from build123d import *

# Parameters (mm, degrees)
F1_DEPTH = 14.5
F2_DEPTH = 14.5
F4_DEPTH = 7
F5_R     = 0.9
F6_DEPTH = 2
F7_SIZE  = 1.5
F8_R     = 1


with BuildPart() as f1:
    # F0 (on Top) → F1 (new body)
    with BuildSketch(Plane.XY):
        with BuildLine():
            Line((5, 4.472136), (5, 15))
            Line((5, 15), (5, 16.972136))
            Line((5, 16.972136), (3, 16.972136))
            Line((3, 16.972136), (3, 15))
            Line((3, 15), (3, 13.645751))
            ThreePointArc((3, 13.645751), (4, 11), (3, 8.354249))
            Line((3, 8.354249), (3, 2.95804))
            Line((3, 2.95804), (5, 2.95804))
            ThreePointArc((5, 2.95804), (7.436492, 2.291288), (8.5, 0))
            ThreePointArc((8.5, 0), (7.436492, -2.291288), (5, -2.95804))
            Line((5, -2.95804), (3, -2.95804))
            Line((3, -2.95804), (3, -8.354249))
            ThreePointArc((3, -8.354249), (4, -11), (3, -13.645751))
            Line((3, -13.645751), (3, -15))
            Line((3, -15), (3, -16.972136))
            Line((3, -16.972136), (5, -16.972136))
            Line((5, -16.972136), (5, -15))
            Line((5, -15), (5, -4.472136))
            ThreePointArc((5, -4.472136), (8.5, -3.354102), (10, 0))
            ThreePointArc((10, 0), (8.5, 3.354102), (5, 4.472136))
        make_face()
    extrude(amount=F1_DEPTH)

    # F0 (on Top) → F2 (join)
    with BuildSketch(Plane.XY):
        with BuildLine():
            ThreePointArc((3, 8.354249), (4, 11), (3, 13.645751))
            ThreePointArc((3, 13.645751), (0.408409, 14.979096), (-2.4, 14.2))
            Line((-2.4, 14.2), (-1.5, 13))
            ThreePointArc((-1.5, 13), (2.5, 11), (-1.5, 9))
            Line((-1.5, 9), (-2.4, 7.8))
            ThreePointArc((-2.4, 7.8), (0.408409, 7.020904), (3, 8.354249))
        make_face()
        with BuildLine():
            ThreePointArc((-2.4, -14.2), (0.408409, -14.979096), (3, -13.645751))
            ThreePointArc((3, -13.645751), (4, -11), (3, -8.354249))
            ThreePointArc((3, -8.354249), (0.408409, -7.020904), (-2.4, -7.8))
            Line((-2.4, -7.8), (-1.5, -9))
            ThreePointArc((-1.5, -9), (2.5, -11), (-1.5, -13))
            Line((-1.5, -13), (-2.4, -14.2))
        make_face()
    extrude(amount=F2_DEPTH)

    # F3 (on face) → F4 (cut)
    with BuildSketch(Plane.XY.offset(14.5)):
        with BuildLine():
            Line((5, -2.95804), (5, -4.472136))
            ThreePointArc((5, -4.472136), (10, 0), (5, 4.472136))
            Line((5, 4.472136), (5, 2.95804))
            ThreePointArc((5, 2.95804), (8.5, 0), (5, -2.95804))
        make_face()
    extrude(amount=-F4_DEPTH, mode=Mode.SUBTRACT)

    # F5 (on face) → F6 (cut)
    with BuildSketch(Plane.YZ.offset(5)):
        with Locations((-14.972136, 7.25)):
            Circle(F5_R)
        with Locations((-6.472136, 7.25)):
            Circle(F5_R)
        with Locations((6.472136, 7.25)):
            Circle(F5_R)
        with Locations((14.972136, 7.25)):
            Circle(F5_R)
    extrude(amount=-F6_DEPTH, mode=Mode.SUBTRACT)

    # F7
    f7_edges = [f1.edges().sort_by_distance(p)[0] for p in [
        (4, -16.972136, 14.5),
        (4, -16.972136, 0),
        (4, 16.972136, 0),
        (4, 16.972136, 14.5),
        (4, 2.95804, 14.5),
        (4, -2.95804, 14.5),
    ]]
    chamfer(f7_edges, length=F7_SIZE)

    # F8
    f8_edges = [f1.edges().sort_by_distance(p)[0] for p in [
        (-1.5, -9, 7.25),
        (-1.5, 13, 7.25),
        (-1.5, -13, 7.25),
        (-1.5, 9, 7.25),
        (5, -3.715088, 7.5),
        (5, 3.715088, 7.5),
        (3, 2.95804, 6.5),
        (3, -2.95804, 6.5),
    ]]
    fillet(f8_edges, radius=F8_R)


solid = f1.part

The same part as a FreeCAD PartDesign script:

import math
import FreeCAD as App
import Part
import Sketcher
from FreeCAD import Vector
Q = App.Units.Quantity


def edges_at(feature, points):
    """Names of the edges that pass closest to the given points."""
    edges = feature.Shape.Edges
    near = lambda p: min(range(len(edges)), key=lambda i: edges[i].distToShape(Part.Vertex(*p))[0])
    return sorted({f"Edge{near(p) + 1}" for p in points})

doc = App.newDocument("Part")
body = doc.addObject("PartDesign::Body", "Body")

sketch1 = body.newObject("Sketcher::SketchObject", "Sketch")
sketch1.AttachmentSupport = (doc.getObject("XY_Plane"), [""])
sketch1.MapMode = "FlatFace"
sketch1.addGeometry([
    Part.LineSegment(Vector(5, 4.472136, 0), Vector(5, 16.972136, 0)),
    Part.LineSegment(Vector(5, 16.972136, 0), Vector(3, 16.972136, 0)),
    Part.LineSegment(Vector(3, 16.972136, 0), Vector(3, 13.645751, 0)),
    Part.ArcOfCircle(Part.Circle(Vector(0.000001, 11, 0), Vector(0, 0, 1), 3.999999), math.radians(-41.409627), math.radians(41.409627)),
    Part.LineSegment(Vector(3, 8.354249, 0), Vector(3, 2.95804, 0)),
    Part.LineSegment(Vector(3, 2.95804, 0), Vector(5, 2.95804, 0)),
    Part.ArcOfCircle(Part.Circle(Vector(5.5, 0.000001, 0), Vector(0, 0, 1), 3), math.radians(-0.000012), math.radians(99.594078)),
    Part.ArcOfCircle(Part.Circle(Vector(5.5, -0.000001, 0), Vector(0, 0, 1), 3), math.radians(-99.594078), math.radians(0.000012)),
    Part.LineSegment(Vector(5, -2.95804, 0), Vector(3, -2.95804, 0)),
    Part.LineSegment(Vector(3, -2.95804, 0), Vector(3, -8.354249, 0)),
    Part.ArcOfCircle(Part.Circle(Vector(0.000001, -11, 0), Vector(0, 0, 1), 3.999999), math.radians(-41.409627), math.radians(41.409627)),
    Part.LineSegment(Vector(3, -13.645751, 0), Vector(3, -16.972136, 0)),
    Part.LineSegment(Vector(3, -16.972136, 0), Vector(5, -16.972136, 0)),
    Part.LineSegment(Vector(5, -16.972136, 0), Vector(5, -4.472136, 0)),
    Part.ArcOfCircle(Part.Circle(Vector(5.5, 0, 0), Vector(0, 0, 1), 4.5), math.radians(-96.37937), math.radians(0)),
    Part.ArcOfCircle(Part.Circle(Vector(5.5, 0, 0), Vector(0, 0, 1), 4.5), math.radians(0), math.radians(96.37937)),
], False)
sketch1.addConstraint([
    Sketcher.Constraint("Coincident", 0, 2, 1, 1),
    Sketcher.Constraint("Coincident", 1, 2, 2, 1),
    Sketcher.Constraint("Coincident", 2, 2, 3, 2),
    Sketcher.Constraint("Coincident", 3, 1, 4, 1),
    Sketcher.Constraint("Coincident", 4, 2, 5, 1),
    Sketcher.Constraint("Coincident", 5, 2, 6, 2),
    Sketcher.Constraint("Tangent", 6, 1, 7, 2),
    Sketcher.Constraint("Coincident", 7, 1, 8, 1),
    Sketcher.Constraint("Coincident", 8, 2, 9, 1),
    Sketcher.Constraint("Coincident", 9, 2, 10, 2),
    Sketcher.Constraint("Coincident", 10, 1, 11, 1),
    Sketcher.Constraint("Coincident", 11, 2, 12, 1),
    Sketcher.Constraint("Coincident", 12, 2, 13, 1),
    Sketcher.Constraint("Coincident", 13, 2, 14, 1),
    Sketcher.Constraint("Tangent", 14, 2, 15, 1),
    Sketcher.Constraint("Coincident", 15, 2, 0, 1),
    Sketcher.Constraint("Vertical", 0),
    Sketcher.Constraint("Horizontal", 1),
    Sketcher.Constraint("Vertical", 2),
    Sketcher.Constraint("Vertical", 4),
    Sketcher.Constraint("Horizontal", 5),
    Sketcher.Constraint("Horizontal", 8),
    Sketcher.Constraint("Vertical", 9),
    Sketcher.Constraint("Vertical", 11),
    Sketcher.Constraint("Horizontal", 12),
    Sketcher.Constraint("Vertical", 13),
    Sketcher.Constraint("Coincident", 14, 3, 6, 3),
    Sketcher.Constraint("Equal", 6, 7),
    Sketcher.Constraint("Equal", 3, 10),
    Sketcher.Constraint("Equal", 14, 15),
    Sketcher.Constraint("Symmetric", 3, 3, 10, 3, -1, 1),
    Sketcher.Constraint("Symmetric", 5, 2, 7, 1, -1),
    Sketcher.Constraint("Symmetric", 3, 1, 9, 2, -1),
    Sketcher.Constraint("Symmetric", 1, 2, 11, 2, -1),
    Sketcher.Constraint("PointOnObject", 6, 1, -1),
    Sketcher.Constraint("PointOnObject", 14, 2, -1),
    Sketcher.Constraint("Vertical", 2, 2, 3, 1),
    Sketcher.Constraint("Vertical", 0, 2, 5, 2),
    Sketcher.Constraint("Vertical", 7, 1, 12, 2),
    Sketcher.Constraint("Radius", 3, Q("3.999999 mm")),
    Sketcher.Constraint("Radius", 6, Q("3 mm")),
    Sketcher.Constraint("Radius", 14, Q("4.5 mm")),
    Sketcher.Constraint("DistanceX", 1, 2, 1, 1, Q("2 mm")),
    Sketcher.Constraint("DistanceY", 0, 1, 0, 2, Q("12.5 mm")),
    Sketcher.Constraint("DistanceY", -1, 1, 3, 3, Q("11 mm")),
    Sketcher.Constraint("DistanceX", -1, 1, 0, 2, Q("5 mm")),
    Sketcher.Constraint("DistanceX", -1, 1, 14, 2, Q("10 mm")),
])
pad1 = body.newObject("PartDesign::Pad", "Pad")
pad1.Profile = sketch1
pad1.Length = 14.5

sketch2 = body.newObject("Sketcher::SketchObject", "Sketch001")
sketch2.AttachmentSupport = (doc.getObject("XY_Plane"), [""])
sketch2.MapMode = "FlatFace"
sketch2.addGeometry([
    Part.ArcOfCircle(Part.Circle(Vector(0.000001, 11, 0), Vector(0, 0, 1), 3.999999), math.radians(-41.409627), math.radians(41.409627)),
    Part.ArcOfCircle(Part.Circle(Vector(0, 11.000002, 0), Vector(0, 0, 1), 3.999999), math.radians(41.4096), math.radians(126.869913)),
    Part.LineSegment(Vector(-2.4, 14.2, 0), Vector(-1.5, 13, 0)),
    Part.ArcOfCircle(Part.Circle(Vector(0, 11, 0), Vector(0, 0, 1), 2.5), math.radians(-126.869898), math.radians(126.869898)),
    Part.LineSegment(Vector(-1.5, 9, 0), Vector(-2.4, 7.8, 0)),
    Part.ArcOfCircle(Part.Circle(Vector(0, 10.999998, 0), Vector(0, 0, 1), 3.999999), math.radians(-126.869913), math.radians(-41.4096)),
    Part.ArcOfCircle(Part.Circle(Vector(0, -11.000002, 0), Vector(0, 0, 1), 3.999999), math.radians(-126.869913), math.radians(-41.4096)),
    Part.ArcOfCircle(Part.Circle(Vector(0.000001, -11, 0), Vector(0, 0, 1), 3.999999), math.radians(-41.409627), math.radians(41.409627)),
    Part.ArcOfCircle(Part.Circle(Vector(0, -10.999998, 0), Vector(0, 0, 1), 3.999999), math.radians(41.4096), math.radians(126.869913)),
    Part.LineSegment(Vector(-2.4, -7.8, 0), Vector(-1.5, -9, 0)),
    Part.ArcOfCircle(Part.Circle(Vector(0, -11, 0), Vector(0, 0, 1), 2.5), math.radians(-126.869898), math.radians(126.869898)),
    Part.LineSegment(Vector(-1.5, -13, 0), Vector(-2.4, -14.2, 0)),
], False)
sketch2.addConstraint([
    Sketcher.Constraint("Tangent", 0, 2, 1, 1),
    Sketcher.Constraint("Coincident", 1, 2, 2, 1),
    Sketcher.Constraint("Coincident", 2, 2, 3, 2),
    Sketcher.Constraint("Coincident", 3, 1, 4, 1),
    Sketcher.Constraint("Coincident", 4, 2, 5, 1),
    Sketcher.Constraint("Tangent", 5, 2, 0, 1),
    Sketcher.Constraint("Tangent", 6, 2, 7, 1),
    Sketcher.Constraint("Tangent", 7, 2, 8, 1),
    Sketcher.Constraint("Coincident", 8, 2, 9, 1),
    Sketcher.Constraint("Coincident", 9, 2, 10, 2),
    Sketcher.Constraint("Coincident", 10, 1, 11, 1),
    Sketcher.Constraint("Coincident", 11, 2, 6, 1),
    Sketcher.Constraint("Coincident", 3, 3, 0, 3),
    Sketcher.Constraint("Coincident", 8, 3, 6, 3),
    Sketcher.Constraint("Coincident", 10, 3, 6, 3),
    Sketcher.Constraint("Equal", 0, 1),
    Sketcher.Constraint("Equal", 1, 5),
    Sketcher.Constraint("Equal", 5, 6),
    Sketcher.Constraint("Equal", 3, 10),
    Sketcher.Constraint("Symmetric", 0, 3, 6, 3, -1, 1),
    Sketcher.Constraint("Symmetric", 0, 2, 6, 2, -1),
    Sketcher.Constraint("Parallel", 2, 9),
    Sketcher.Constraint("Parallel", 4, 11),
    Sketcher.Constraint("Vertical", 2, 2, 3, 1),
    Sketcher.Constraint("Vertical", 1, 2, 4, 2),
    Sketcher.Constraint("Vertical", 0, 2, 5, 2),
    Sketcher.Constraint("Vertical", 6, 2, 7, 2),
    Sketcher.Constraint("Vertical", 4, 2, 8, 2),
    Sketcher.Constraint("Vertical", 9, 2, 10, 1),
    Sketcher.Constraint("Radius", 0, Q("3.999999 mm")),
    Sketcher.Constraint("Radius", 3, Q("2.5 mm")),
    Sketcher.Constraint("DistanceY", -1, 1, 0, 3, Q("11 mm")),
    Sketcher.Constraint("DistanceX", -1, 1, 0, 2, Q("3 mm")),
    Sketcher.Constraint("DistanceY", -1, 1, 2, 2, Q("13 mm")),
    Sketcher.Constraint("DistanceX", 1, 2, -1, 1, Q("2.4 mm")),
])
pad2 = body.newObject("PartDesign::Pad", "Pad001")
pad2.Profile = sketch2
pad2.Length = 14.5

sketch3 = body.newObject("Sketcher::SketchObject", "Sketch002")
sketch3.AttachmentSupport = (doc.getObject("XY_Plane"), [""])
sketch3.MapMode = "FlatFace"
sketch3.AttachmentOffset = App.Placement(Vector(0, 0, 14.5), App.Rotation())
sketch3.addGeometry([
    Part.LineSegment(Vector(5, -2.95804, 0), Vector(5, -4.472136, 0)),
    Part.ArcOfCircle(Part.Circle(Vector(5.5, 0, 0), Vector(0, 0, 1), 4.5), math.radians(-96.37937), math.radians(96.37937)),
    Part.LineSegment(Vector(5, 4.472136, 0), Vector(5, 2.95804, 0)),
    Part.ArcOfCircle(Part.Circle(Vector(5.5, 0, 0), Vector(0, 0, 1), 3), math.radians(-99.594066), math.radians(99.594066)),
], False)
sketch3.addConstraint([
    Sketcher.Constraint("Coincident", 0, 2, 1, 1),
    Sketcher.Constraint("Coincident", 1, 2, 2, 1),
    Sketcher.Constraint("Coincident", 2, 2, 3, 2),
    Sketcher.Constraint("Coincident", 3, 1, 0, 1),
    Sketcher.Constraint("Vertical", 0),
    Sketcher.Constraint("Vertical", 2),
    Sketcher.Constraint("Coincident", 3, 3, 1, 3),
    Sketcher.Constraint("Symmetric", 0, 2, 1, 2, -1),
    Sketcher.Constraint("Radius", 3, Q("3 mm")),
    Sketcher.Constraint("Radius", 1, Q("4.5 mm")),
    Sketcher.Constraint("DistanceX", -1, 1, 0, 2, Q("5 mm")),
    Sketcher.Constraint("DistanceX", -1, 1, 1, 3, Q("5.5 mm")),
])
pocket1 = body.newObject("PartDesign::Pocket", "Pocket")
pocket1.Profile = sketch3
pocket1.Length = 7

sketch4 = body.newObject("Sketcher::SketchObject", "Sketch003")
sketch4.AttachmentSupport = (doc.getObject("YZ_Plane"), [""])
sketch4.MapMode = "FlatFace"
sketch4.AttachmentOffset = App.Placement(Vector(0, 0, 5), App.Rotation())
sketch4.addGeometry([
    Part.Circle(Vector(-14.972136, 7.25, 0), Vector(0, 0, 1), 0.9),
    Part.Circle(Vector(-6.472136, 7.25, 0), Vector(0, 0, 1), 0.9),
    Part.Circle(Vector(6.472136, 7.25, 0), Vector(0, 0, 1), 0.9),
    Part.Circle(Vector(14.972136, 7.25, 0), Vector(0, 0, 1), 0.9),
], False)
sketch4.addConstraint([
    Sketcher.Constraint("Equal", 0, 1),
    Sketcher.Constraint("Equal", 1, 2),
    Sketcher.Constraint("Equal", 2, 3),
    Sketcher.Constraint("Symmetric", 1, 3, 2, 3, -2),
    Sketcher.Constraint("Symmetric", 0, 3, 3, 3, -2),
    Sketcher.Constraint("Horizontal", 0, 3, 1, 3),
    Sketcher.Constraint("Diameter", 0, Q("1.8 mm")),
    Sketcher.Constraint("DistanceX", 0, 3, 1, 3, Q("8.5 mm")),
    Sketcher.Constraint("DistanceY", -1, 1, 0, 3, Q("7.25 mm")),
    Sketcher.Constraint("DistanceX", 0, 3, -1, 1, Q("14.972136 mm")),
])
pocket2 = body.newObject("PartDesign::Pocket", "Pocket001")
pocket2.Profile = sketch4
pocket2.Length = 2
doc.recompute()

chamfer = body.newObject("PartDesign::Chamfer", "Chamfer")
chamfer.Base = (pocket2, edges_at(pocket2, [
    (4, -16.972, 14.5),
    (4, -16.972, 0),
    (4, 16.972, 0),
    (4, 16.972, 14.5),
    (4, 2.958, 14.5),
    (4, -2.958, 14.5),
]))
chamfer.Size = 1.5
doc.recompute()

fillet = body.newObject("PartDesign::Fillet", "Fillet")
fillet.Base = (chamfer, edges_at(chamfer, [
    (-1.5, -9, 7.25),
    (-1.5, 13, 7.25),
    (-1.5, -13, 7.25),
    (-1.5, 9, 7.25),
    (5, -3.715, 7.5),
    (5, 3.715, 7.5),
    (3, 2.958, 6.5),
    (3, -2.958, 6.5),
]))
fillet.Radius = 1

doc.recompute()
